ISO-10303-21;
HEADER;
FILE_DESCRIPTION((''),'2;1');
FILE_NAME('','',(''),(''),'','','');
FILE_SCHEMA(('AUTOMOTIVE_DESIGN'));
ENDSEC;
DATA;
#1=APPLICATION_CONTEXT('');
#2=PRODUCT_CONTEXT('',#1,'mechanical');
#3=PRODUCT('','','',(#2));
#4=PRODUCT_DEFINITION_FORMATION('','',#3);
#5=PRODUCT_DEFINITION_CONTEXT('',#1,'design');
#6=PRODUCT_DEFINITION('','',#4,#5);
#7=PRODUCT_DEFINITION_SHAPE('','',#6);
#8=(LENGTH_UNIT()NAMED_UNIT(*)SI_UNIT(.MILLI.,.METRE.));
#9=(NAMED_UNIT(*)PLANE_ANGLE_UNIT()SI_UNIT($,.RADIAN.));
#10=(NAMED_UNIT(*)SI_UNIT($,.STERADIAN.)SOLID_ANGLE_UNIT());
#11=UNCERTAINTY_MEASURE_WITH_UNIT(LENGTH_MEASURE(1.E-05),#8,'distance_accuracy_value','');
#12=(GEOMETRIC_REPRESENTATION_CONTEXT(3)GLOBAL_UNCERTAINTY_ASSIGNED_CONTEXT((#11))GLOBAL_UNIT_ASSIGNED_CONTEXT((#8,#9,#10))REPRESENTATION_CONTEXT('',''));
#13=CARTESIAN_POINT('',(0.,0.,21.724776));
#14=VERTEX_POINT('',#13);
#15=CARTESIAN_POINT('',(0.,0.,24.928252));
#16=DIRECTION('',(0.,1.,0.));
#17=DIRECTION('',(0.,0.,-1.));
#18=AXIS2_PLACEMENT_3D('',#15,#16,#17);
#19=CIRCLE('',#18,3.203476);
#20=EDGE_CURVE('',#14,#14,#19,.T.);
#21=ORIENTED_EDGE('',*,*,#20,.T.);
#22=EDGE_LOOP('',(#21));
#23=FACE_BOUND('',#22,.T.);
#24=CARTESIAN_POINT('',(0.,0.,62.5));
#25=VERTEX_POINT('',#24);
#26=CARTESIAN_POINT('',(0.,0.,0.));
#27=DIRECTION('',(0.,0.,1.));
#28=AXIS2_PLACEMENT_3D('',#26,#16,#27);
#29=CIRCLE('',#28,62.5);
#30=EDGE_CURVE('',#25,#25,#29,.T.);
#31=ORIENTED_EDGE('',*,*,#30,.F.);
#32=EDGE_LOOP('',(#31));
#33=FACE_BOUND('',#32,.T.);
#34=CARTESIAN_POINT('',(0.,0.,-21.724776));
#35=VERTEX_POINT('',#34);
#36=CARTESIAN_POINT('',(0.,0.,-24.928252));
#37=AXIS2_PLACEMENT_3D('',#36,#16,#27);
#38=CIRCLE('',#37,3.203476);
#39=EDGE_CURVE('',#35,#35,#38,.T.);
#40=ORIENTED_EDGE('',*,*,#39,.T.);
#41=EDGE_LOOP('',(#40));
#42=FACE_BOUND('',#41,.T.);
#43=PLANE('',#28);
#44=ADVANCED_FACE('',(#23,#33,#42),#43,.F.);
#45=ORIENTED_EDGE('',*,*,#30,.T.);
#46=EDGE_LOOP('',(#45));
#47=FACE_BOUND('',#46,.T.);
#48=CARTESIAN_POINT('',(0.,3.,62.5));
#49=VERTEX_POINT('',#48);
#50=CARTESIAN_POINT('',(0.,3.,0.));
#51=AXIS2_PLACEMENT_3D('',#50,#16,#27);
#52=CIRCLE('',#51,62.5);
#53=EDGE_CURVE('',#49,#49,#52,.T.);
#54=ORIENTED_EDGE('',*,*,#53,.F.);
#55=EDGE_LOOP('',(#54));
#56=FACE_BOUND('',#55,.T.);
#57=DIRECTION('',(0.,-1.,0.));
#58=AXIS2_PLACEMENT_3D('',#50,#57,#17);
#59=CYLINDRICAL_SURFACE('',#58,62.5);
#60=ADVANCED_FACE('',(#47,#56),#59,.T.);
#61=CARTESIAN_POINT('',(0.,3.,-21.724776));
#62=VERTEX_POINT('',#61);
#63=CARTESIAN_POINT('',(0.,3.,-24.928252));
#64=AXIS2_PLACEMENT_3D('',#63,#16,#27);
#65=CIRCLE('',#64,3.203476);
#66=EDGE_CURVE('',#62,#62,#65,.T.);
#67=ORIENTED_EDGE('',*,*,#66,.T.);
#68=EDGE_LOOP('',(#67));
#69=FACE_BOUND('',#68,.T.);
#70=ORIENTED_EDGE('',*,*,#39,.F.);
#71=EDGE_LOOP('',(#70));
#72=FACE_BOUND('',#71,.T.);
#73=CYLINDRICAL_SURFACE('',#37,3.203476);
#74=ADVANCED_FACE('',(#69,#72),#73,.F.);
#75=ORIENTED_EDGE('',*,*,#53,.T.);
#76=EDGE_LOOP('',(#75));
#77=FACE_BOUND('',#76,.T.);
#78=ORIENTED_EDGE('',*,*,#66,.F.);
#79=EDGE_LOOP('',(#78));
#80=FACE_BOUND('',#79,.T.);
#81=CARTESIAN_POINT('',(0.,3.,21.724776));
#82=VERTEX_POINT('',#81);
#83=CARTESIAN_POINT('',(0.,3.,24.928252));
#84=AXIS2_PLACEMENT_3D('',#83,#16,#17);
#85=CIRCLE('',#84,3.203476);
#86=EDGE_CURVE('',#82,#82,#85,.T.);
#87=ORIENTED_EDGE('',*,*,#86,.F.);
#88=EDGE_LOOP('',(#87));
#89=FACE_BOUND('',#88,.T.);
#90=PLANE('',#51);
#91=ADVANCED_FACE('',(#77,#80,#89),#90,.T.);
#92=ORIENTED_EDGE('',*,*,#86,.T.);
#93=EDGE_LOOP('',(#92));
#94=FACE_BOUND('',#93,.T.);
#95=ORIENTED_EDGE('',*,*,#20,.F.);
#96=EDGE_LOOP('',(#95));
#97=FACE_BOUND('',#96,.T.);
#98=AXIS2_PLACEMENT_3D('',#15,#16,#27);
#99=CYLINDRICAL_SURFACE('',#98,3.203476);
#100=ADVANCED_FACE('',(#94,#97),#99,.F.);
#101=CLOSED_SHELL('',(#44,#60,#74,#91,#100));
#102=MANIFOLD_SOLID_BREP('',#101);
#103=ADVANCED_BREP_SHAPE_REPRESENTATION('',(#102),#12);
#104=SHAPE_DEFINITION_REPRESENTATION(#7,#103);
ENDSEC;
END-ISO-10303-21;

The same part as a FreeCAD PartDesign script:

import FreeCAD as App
import Part
import Sketcher
Q = App.Units.Quantity

doc = App.newDocument("Part")
body = doc.addObject("PartDesign::Body", "Body")

# Sketch on XZ plane
sketch1 = doc.addObject("Sketcher::SketchObject", "Sketch")
body.addObject(sketch1)
sketch1.AttachmentSupport = (doc.XZ_Plane, [""])
sketch1.MapMode = "FlatFace"
sketch1.addGeometry(Part.Circle(App.Vector(0, 0, 0), App.Vector(0, 0, 1), 62), False)
sketch1.addConstraint(Sketcher.Constraint("Coincident", 0, 3, -1, 1))
sketch1.addConstraint(Sketcher.Constraint("Diameter", 0, Q("125 mm")))
pad1 = doc.addObject("PartDesign::Pad", "Pad")
body.addObject(pad1)
pad1.Profile = sketch1
pad1.Length = 3
pad1.Reversed = True

# Sketch on XZ plane
sketch2 = doc.addObject("Sketcher::SketchObject", "Sketch001")
body.addObject(sketch2)
sketch2.AttachmentSupport = (doc.XZ_Plane, [""])
sketch2.MapMode = "FlatFace"
sketch2.AttachmentOffset = App.Placement(App.Vector(0, 0, -3), App.Rotation())
sketch2.addGeometry(Part.Circle(App.Vector(0, -24.9, 0), App.Vector(0, 0, 1), 3.2), False)
sketch2.addGeometry(Part.Circle(App.Vector(0, 24.9, 0), App.Vector(0, 0, 1), 3.2), False)
sketch2.addConstraint(Sketcher.Constraint("Equal", 0, 1))
sketch2.addConstraint(Sketcher.Constraint("Symmetric", 0, 3, 1, 3, -1, 1))
sketch2.addConstraint(Sketcher.Constraint("PointOnObject", 0, 3, -2))
sketch2.addConstraint(Sketcher.Constraint("Diameter", 0, Q("6.406953 mm")))
sketch2.addConstraint(Sketcher.Constraint("DistanceY", 0, 3, -1, 1, Q("24.928252 mm")))
pocket1 = doc.addObject("PartDesign::Pocket", "Pocket")
body.addObject(pocket1)
pocket1.Profile = sketch2
pocket1.Type = "ThroughAll"
pocket1.Reversed = True

doc.recompute()
